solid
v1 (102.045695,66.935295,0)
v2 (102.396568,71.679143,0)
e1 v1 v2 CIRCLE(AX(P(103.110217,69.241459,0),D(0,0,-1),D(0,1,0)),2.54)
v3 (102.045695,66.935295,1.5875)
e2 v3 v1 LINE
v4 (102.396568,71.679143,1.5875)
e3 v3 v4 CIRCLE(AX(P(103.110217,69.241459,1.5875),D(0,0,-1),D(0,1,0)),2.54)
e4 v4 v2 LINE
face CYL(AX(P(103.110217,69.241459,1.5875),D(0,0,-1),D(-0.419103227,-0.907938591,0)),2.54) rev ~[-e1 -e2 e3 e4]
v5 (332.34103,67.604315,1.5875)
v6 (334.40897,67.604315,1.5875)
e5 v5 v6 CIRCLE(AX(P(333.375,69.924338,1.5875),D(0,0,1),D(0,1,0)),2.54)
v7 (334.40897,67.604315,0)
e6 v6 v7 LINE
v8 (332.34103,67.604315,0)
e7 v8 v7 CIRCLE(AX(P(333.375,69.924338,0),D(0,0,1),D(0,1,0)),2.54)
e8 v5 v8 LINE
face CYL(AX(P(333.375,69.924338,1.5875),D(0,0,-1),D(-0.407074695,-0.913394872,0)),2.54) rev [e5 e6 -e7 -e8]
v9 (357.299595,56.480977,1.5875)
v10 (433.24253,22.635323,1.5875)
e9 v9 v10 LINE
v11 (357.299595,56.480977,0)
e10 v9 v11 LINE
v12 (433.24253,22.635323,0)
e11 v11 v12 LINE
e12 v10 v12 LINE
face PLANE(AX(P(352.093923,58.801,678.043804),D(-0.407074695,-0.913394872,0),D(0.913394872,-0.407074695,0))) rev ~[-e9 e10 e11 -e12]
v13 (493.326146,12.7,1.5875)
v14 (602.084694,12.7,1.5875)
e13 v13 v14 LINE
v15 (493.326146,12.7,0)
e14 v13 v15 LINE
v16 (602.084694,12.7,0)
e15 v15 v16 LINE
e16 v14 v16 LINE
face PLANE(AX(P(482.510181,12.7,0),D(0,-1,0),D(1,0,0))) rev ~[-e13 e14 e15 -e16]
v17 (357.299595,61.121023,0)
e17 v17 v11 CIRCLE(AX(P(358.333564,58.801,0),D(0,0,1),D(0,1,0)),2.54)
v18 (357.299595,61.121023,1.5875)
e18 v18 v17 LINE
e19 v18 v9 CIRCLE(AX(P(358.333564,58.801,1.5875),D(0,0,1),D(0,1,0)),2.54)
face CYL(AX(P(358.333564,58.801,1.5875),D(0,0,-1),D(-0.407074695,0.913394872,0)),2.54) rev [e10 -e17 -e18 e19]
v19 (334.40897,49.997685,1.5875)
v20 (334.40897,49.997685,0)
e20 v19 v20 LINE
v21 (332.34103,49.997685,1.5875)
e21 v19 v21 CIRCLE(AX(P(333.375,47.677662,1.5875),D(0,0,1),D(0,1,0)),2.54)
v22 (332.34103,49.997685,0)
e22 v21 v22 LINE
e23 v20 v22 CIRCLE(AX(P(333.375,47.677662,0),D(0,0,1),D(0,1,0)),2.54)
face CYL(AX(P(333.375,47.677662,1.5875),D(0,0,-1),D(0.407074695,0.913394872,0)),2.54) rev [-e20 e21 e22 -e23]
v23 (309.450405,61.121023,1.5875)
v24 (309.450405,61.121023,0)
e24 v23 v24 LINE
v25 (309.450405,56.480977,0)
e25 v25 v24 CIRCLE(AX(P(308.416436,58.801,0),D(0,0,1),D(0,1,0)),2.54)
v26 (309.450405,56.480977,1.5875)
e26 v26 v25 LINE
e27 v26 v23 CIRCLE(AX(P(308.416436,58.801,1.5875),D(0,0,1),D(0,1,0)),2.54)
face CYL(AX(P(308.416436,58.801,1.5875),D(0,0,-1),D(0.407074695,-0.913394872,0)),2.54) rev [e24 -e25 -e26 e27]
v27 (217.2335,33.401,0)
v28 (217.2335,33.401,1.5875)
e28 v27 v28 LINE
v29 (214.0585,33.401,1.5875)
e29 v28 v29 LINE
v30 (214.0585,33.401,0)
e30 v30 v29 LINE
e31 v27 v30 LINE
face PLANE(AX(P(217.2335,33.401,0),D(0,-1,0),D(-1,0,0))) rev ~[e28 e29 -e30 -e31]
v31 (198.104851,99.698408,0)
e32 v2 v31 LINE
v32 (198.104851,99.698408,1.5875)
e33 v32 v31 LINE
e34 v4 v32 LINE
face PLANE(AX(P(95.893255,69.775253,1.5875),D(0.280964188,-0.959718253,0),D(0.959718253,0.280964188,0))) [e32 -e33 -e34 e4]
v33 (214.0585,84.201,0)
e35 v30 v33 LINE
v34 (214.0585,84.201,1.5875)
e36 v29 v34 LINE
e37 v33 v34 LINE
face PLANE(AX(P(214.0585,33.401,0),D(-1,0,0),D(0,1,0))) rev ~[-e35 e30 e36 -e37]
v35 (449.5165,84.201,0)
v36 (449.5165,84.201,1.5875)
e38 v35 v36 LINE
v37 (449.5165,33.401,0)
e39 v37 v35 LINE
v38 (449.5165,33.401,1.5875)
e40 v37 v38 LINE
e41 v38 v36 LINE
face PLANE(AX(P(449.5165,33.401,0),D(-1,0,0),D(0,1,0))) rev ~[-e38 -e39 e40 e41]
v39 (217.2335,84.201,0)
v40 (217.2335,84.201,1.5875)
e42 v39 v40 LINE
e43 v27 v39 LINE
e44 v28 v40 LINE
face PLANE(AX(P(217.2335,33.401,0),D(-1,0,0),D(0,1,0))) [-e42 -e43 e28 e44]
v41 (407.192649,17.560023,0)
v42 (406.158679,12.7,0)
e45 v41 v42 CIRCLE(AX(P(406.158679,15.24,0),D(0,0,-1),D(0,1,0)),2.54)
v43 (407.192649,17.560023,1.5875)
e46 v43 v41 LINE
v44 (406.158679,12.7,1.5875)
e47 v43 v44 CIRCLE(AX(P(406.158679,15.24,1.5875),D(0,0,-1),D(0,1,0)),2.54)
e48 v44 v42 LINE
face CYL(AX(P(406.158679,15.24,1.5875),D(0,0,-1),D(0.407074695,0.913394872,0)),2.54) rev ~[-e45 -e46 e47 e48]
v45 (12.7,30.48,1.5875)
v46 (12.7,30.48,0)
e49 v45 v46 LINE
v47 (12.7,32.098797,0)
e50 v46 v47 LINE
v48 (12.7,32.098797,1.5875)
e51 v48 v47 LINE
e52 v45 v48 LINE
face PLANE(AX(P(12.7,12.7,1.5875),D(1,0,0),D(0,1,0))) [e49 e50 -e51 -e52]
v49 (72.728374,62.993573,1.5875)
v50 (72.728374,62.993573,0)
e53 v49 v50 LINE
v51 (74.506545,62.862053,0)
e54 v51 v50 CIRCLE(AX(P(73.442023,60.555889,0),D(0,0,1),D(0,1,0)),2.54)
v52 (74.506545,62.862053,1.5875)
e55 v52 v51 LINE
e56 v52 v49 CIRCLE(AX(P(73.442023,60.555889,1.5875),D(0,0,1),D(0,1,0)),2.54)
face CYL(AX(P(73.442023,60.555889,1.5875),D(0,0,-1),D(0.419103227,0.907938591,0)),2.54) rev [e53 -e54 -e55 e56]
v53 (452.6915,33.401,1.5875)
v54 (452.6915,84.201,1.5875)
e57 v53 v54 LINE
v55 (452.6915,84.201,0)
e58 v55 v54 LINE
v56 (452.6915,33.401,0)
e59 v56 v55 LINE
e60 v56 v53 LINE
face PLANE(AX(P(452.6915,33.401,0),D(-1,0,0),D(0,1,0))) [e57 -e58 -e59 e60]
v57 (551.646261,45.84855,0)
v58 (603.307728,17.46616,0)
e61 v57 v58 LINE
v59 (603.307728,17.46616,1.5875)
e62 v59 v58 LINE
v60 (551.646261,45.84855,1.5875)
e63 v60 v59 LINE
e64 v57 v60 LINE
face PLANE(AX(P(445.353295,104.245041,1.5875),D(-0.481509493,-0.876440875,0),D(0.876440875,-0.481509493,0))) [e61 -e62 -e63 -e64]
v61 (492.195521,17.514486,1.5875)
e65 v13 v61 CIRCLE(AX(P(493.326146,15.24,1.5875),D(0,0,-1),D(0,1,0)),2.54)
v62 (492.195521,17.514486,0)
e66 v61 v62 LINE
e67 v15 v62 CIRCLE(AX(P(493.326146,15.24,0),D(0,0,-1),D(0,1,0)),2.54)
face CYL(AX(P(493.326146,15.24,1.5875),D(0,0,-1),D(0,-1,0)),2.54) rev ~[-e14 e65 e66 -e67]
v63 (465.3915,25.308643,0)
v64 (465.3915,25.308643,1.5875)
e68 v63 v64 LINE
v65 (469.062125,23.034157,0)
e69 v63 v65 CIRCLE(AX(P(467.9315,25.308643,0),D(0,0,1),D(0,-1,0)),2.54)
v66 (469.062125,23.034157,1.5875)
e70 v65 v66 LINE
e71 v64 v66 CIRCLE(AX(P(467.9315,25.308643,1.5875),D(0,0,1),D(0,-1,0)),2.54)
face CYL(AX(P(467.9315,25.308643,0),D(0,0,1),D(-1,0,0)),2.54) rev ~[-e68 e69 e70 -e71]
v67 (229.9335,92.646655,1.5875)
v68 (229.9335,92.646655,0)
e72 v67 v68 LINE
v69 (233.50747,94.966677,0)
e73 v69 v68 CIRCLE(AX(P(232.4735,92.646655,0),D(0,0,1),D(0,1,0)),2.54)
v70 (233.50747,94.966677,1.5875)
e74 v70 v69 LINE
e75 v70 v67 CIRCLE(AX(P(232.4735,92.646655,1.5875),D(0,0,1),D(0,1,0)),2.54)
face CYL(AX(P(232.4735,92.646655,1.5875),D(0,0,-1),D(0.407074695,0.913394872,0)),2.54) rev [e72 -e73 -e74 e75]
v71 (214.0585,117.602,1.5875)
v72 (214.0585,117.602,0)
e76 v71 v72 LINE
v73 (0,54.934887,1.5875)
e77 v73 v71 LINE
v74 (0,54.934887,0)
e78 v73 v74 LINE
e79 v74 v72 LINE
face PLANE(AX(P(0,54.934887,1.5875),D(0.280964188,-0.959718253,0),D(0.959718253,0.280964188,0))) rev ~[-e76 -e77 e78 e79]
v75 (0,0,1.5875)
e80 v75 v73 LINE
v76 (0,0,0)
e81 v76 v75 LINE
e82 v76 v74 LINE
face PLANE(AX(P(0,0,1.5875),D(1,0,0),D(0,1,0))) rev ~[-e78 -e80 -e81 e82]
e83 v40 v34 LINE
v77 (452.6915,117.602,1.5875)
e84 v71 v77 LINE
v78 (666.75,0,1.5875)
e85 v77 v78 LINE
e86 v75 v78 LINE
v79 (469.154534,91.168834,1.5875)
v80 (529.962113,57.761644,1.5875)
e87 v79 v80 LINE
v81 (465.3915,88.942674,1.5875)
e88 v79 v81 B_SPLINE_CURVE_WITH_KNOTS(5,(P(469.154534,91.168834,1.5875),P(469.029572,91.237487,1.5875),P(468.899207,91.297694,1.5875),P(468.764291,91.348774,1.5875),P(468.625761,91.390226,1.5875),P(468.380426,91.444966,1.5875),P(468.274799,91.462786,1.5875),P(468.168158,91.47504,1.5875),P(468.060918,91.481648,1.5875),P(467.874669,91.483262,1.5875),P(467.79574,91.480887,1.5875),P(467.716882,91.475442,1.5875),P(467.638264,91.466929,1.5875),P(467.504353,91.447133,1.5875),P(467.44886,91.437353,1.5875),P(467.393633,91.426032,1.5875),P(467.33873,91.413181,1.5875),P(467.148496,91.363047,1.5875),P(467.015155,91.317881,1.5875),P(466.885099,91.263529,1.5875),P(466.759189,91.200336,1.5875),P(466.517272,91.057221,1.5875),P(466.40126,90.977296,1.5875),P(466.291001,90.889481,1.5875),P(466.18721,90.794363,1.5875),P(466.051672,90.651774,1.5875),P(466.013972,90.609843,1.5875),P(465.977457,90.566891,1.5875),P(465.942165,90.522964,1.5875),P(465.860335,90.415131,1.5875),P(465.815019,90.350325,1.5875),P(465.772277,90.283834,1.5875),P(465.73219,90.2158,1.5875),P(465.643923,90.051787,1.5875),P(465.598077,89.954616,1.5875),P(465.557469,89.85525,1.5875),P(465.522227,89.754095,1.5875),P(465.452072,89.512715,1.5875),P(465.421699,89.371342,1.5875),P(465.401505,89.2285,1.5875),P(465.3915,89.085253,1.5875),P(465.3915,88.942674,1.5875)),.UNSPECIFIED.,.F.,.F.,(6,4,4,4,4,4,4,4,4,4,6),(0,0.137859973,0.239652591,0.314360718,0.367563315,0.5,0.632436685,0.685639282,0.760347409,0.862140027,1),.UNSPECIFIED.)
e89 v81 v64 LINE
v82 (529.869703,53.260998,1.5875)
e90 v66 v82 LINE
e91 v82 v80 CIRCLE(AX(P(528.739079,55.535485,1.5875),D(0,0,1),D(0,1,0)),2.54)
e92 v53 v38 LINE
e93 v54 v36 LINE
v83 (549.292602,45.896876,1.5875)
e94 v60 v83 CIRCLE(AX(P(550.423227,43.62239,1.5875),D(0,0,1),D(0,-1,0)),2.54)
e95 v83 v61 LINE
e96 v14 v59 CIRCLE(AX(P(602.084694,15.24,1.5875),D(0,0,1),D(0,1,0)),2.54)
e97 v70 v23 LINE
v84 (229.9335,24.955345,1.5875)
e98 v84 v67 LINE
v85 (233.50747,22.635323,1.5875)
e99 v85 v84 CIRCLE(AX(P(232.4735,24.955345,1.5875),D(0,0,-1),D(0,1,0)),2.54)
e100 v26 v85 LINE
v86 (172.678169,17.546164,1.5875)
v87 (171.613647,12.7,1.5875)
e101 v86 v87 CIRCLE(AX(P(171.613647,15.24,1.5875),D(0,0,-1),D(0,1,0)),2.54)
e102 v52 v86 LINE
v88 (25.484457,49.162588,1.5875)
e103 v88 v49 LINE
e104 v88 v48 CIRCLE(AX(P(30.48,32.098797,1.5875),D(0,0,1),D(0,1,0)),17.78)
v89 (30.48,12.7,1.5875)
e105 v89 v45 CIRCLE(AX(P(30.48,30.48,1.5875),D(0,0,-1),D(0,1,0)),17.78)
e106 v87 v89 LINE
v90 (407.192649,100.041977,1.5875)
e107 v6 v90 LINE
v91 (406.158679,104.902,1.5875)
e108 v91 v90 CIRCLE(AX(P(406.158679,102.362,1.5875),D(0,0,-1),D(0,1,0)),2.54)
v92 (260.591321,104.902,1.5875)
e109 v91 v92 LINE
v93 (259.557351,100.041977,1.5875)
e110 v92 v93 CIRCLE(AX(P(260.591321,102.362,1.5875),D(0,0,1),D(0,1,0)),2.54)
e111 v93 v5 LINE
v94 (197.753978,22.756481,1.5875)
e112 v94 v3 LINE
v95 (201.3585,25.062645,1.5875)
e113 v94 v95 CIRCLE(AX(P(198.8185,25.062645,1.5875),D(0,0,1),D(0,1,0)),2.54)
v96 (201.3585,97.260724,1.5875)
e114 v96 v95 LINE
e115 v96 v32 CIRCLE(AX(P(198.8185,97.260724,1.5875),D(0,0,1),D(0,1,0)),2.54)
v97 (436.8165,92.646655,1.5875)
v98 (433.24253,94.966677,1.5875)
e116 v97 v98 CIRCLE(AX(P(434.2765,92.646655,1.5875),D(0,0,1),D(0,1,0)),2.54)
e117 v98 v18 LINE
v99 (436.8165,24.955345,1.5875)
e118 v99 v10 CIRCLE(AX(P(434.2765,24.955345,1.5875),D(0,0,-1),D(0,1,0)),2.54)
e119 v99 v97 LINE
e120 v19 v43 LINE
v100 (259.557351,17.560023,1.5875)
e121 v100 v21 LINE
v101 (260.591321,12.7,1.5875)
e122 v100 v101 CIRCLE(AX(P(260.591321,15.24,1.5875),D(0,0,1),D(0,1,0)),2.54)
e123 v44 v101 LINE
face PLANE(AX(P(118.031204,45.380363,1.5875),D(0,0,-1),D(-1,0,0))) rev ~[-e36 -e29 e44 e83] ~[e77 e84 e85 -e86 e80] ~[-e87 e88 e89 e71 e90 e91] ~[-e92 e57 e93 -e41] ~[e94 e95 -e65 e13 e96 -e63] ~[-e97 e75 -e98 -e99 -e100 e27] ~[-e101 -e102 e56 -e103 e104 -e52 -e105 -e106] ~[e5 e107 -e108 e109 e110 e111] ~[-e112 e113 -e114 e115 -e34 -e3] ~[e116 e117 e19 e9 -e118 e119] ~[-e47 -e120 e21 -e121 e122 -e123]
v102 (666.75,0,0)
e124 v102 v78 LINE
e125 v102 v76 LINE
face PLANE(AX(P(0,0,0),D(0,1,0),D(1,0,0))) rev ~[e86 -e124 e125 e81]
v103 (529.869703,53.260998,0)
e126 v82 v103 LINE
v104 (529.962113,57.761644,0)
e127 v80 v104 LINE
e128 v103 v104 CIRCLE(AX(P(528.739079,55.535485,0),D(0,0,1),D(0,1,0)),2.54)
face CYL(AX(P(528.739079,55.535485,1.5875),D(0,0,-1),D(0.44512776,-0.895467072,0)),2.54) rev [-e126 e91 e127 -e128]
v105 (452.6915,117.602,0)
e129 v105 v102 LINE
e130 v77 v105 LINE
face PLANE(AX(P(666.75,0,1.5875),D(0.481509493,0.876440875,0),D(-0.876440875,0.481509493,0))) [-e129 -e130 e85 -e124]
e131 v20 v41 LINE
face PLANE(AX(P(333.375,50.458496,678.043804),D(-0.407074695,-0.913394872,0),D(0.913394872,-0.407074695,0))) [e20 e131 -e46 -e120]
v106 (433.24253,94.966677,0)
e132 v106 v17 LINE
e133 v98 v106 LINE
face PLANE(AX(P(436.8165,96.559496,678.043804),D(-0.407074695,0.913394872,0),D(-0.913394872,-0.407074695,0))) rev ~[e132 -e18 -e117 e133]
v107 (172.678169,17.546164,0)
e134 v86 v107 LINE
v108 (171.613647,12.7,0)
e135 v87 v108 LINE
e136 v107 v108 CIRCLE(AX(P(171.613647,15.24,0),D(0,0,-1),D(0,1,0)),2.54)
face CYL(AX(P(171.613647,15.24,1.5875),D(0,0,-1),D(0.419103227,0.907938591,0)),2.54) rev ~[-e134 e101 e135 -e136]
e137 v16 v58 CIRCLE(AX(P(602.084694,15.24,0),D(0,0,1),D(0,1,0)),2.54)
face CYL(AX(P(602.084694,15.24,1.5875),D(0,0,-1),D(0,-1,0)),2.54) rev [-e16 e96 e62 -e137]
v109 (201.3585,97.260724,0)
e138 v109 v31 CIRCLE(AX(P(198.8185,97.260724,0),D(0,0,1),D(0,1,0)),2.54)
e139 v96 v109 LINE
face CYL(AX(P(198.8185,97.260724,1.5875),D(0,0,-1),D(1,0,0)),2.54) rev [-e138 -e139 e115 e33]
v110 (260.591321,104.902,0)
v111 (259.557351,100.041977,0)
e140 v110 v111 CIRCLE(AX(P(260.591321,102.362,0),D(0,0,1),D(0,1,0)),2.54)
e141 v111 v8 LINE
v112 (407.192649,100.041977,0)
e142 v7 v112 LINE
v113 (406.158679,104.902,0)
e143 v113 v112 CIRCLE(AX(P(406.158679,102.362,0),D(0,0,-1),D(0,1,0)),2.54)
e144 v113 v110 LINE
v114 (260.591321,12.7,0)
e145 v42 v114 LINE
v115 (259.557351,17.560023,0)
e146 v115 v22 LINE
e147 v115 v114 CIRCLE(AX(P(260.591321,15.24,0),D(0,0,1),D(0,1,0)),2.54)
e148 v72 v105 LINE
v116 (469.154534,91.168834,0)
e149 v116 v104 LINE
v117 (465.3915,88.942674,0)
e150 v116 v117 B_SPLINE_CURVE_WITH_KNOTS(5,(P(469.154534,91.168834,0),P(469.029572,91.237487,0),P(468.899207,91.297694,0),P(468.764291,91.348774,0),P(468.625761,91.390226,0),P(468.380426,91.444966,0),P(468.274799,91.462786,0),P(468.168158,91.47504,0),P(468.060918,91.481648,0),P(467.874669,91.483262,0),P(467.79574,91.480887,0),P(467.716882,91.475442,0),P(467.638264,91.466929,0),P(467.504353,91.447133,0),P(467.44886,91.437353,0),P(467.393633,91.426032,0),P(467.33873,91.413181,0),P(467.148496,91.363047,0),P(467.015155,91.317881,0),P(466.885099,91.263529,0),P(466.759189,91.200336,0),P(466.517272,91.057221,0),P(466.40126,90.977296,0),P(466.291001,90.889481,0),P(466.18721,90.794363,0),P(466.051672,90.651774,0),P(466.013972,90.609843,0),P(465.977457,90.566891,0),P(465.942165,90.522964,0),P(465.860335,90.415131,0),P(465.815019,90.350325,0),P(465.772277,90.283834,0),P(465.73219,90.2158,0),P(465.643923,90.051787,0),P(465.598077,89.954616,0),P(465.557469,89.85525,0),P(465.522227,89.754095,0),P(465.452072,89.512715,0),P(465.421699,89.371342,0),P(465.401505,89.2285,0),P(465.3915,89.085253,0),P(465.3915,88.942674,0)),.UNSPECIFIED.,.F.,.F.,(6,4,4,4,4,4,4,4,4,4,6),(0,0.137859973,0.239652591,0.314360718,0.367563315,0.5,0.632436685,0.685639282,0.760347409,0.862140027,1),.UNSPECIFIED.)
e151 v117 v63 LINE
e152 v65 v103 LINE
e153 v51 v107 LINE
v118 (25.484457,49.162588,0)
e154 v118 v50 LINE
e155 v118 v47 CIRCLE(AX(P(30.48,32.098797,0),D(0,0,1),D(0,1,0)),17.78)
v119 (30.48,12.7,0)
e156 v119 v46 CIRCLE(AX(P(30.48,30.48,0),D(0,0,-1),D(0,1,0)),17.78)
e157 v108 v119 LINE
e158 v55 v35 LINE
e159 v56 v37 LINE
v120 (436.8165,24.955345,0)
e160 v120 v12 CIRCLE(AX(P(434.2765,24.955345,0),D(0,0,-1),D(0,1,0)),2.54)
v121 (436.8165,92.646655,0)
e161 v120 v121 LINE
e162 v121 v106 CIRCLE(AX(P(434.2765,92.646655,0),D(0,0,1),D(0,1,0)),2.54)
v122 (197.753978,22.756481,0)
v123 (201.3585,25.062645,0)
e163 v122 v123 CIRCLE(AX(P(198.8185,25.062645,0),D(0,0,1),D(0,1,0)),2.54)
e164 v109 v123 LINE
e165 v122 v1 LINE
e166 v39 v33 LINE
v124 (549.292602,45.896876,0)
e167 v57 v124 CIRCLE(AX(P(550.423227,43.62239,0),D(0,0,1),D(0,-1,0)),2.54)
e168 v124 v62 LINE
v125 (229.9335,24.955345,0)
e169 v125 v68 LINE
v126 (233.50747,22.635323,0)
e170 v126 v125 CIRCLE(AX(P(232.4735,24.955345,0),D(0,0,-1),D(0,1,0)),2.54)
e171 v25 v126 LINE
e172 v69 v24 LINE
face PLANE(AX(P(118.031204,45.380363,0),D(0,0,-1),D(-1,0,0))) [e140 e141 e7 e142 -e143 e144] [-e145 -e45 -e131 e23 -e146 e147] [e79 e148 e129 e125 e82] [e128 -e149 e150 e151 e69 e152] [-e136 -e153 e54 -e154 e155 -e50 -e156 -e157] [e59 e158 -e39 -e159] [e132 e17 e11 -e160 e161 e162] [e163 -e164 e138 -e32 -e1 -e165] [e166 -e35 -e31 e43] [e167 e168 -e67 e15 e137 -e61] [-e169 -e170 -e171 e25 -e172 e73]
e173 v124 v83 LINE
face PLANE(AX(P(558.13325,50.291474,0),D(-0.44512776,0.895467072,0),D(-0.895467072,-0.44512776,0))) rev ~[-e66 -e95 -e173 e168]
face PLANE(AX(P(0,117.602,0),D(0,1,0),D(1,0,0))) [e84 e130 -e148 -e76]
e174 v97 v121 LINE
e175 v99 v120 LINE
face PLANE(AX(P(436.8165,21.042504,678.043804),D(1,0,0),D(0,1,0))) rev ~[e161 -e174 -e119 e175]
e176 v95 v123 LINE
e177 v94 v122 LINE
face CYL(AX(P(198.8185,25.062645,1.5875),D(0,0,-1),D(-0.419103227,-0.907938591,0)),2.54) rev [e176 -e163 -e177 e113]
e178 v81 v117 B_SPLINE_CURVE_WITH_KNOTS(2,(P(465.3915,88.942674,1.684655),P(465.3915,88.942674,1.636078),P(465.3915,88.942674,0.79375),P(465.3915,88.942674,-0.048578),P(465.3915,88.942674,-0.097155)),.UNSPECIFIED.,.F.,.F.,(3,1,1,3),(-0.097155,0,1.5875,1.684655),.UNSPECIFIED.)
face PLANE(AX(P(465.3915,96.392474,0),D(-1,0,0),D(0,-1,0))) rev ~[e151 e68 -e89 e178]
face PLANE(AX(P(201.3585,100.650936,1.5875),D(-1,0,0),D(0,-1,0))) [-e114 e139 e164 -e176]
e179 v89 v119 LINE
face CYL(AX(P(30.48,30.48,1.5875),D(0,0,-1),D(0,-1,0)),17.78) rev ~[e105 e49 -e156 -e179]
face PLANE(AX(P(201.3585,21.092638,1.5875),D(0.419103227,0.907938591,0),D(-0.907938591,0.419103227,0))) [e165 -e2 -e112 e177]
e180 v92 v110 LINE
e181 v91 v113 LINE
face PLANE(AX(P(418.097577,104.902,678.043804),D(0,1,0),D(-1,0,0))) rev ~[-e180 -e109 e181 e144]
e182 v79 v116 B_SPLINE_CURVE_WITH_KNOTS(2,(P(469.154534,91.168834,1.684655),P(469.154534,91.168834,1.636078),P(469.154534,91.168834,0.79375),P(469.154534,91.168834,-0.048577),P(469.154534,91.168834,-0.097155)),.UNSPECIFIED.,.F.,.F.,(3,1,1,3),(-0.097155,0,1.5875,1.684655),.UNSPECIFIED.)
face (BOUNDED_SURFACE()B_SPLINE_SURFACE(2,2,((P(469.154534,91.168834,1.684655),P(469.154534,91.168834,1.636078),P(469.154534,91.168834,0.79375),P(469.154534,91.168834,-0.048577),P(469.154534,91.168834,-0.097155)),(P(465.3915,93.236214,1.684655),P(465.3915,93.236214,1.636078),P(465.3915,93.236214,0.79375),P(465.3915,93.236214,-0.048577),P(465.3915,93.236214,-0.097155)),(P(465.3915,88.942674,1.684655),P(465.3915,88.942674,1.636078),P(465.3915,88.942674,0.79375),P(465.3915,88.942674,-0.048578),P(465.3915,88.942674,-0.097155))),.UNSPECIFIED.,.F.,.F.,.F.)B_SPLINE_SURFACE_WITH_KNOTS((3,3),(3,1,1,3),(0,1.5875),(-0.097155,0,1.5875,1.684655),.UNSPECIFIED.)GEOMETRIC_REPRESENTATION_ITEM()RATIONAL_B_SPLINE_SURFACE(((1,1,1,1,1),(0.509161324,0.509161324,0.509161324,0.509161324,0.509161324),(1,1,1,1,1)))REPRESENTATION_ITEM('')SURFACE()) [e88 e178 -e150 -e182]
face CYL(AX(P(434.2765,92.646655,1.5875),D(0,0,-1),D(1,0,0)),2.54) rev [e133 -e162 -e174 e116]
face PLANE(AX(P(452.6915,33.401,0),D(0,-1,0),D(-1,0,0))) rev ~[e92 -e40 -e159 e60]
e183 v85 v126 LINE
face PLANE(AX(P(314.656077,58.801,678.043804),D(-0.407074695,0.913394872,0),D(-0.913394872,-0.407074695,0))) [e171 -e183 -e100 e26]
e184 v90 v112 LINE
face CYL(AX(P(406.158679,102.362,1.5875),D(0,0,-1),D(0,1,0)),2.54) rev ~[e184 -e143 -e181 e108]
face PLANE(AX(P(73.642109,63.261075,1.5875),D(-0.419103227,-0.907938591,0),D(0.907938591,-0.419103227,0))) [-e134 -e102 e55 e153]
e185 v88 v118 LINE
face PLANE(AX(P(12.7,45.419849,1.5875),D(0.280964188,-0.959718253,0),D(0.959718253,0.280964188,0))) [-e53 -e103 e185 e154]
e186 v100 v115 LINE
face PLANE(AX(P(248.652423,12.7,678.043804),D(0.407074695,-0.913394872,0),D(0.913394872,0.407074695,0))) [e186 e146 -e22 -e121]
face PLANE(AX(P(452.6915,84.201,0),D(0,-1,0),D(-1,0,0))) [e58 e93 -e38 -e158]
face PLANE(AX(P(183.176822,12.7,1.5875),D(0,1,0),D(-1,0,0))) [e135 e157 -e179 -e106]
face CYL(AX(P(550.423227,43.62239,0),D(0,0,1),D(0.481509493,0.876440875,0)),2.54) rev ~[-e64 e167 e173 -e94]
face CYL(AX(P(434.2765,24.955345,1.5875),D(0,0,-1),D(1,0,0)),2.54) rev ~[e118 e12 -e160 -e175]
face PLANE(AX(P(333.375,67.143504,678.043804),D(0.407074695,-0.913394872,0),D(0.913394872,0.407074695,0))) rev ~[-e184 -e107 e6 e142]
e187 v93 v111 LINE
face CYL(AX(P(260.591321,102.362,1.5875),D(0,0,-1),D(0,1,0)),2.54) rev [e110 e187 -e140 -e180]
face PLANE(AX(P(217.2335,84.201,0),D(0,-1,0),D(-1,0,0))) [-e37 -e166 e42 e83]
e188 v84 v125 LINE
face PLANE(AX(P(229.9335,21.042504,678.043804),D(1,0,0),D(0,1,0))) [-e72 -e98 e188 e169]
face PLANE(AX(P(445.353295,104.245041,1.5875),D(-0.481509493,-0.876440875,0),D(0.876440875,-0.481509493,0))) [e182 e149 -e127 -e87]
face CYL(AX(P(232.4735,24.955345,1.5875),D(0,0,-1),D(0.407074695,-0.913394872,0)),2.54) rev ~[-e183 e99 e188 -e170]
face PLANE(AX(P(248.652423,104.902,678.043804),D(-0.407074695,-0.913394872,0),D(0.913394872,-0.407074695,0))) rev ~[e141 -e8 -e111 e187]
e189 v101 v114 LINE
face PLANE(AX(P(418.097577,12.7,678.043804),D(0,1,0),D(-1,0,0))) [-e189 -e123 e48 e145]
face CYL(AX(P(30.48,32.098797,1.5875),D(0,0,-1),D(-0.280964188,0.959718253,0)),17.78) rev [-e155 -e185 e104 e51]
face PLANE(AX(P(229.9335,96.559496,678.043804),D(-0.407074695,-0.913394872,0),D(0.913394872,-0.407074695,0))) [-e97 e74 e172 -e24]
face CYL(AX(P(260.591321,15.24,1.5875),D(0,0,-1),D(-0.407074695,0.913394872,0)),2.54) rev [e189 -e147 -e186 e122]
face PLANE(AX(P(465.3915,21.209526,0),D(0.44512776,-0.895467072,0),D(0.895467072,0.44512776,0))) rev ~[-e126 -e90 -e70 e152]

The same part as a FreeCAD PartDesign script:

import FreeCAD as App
import Part
import Sketcher
Q = App.Units.Quantity


def edges_at(feature, points):
    """Names of the edges that pass closest to the given points."""
    edges = feature.Shape.Edges
    near = lambda p: min(range(len(edges)), key=lambda i: edges[i].distToShape(Part.Vertex(*p))[0])
    return sorted({f"Edge{near(p) + 1}" for p in points})

doc = App.newDocument("Part")
body = doc.addObject("PartDesign::Body", "Body")

sketch1 = body.newObject("Sketcher::SketchObject", "Sketch")
sketch1.AttachmentSupport = (doc.getObject("XY_Plane"), [""])
sketch1.MapMode = "FlatFace"
sketch1.addGeometry([
    Part.LineSegment(App.Vector(0, 118, 0), App.Vector(0, 0, 0)),
    Part.LineSegment(App.Vector(0, 0, 0), App.Vector(667, 0, 0)),
    Part.LineSegment(App.Vector(667, 0, 0), App.Vector(667, 118, 0)),
    Part.LineSegment(App.Vector(667, 118, 0), App.Vector(0, 118, 0)),
], False)
sketch1.addConstraint([
    Sketcher.Constraint("Coincident", 0, 2, 1, 1),
    Sketcher.Constraint("Coincident", 1, 2, 2, 1),
    Sketcher.Constraint("Coincident", 2, 2, 3, 1),
    Sketcher.Constraint("Coincident", 3, 2, 0, 1),
    Sketcher.Constraint("Vertical", 0),
    Sketcher.Constraint("Horizontal", 1),
    Sketcher.Constraint("Vertical", 2),
    Sketcher.Constraint("Horizontal", 3),
    Sketcher.Constraint("Coincident", 0, 2, -1, 1),
    Sketcher.Constraint("DistanceX", 1, 1, 1, 2, Q("26.25 in")),
    Sketcher.Constraint("DistanceY", 0, 2, 0, 1, Q("4.63 in")),
])
pad1 = body.newObject("PartDesign::Pad", "Pad")
pad1.Profile = sketch1
pad1.Length = Q("0.0625 in")

sketch2 = body.newObject("Sketcher::SketchObject", "Sketch001")
sketch2.AttachmentSupport = (doc.getObject("XY_Plane"), [""])
sketch2.MapMode = "FlatFace"
sketch2.addGeometry([
    Part.LineSegment(App.Vector(217.2, 84.2, 0), App.Vector(217.2, 33.4, 0)),
    Part.LineSegment(App.Vector(217.2, 33.4, 0), App.Vector(214.1, 33.4, 0)),
    Part.LineSegment(App.Vector(214.1, 33.4, 0), App.Vector(214.1, 84.2, 0)),
    Part.LineSegment(App.Vector(214.1, 84.2, 0), App.Vector(217.2, 84.2, 0)),
], False)
sketch2.addConstraint([
    Sketcher.Constraint("Coincident", 0, 2, 1, 1),
    Sketcher.Constraint("Coincident", 1, 2, 2, 1),
    Sketcher.Constraint("Coincident", 2, 2, 3, 1),
    Sketcher.Constraint("Coincident", 3, 2, 0, 1),
    Sketcher.Constraint("Vertical", 0),
    Sketcher.Constraint("Horizontal", 1),
    Sketcher.Constraint("Vertical", 2),
    Sketcher.Constraint("Horizontal", 3),
    Sketcher.Constraint("DistanceY", 0, 2, 0, 1, Q("2 in")),
    Sketcher.Constraint("DistanceX", 1, 2, 1, 1, Q("0.125 in")),
    Sketcher.Constraint("DistanceY", -1, 1, 0, 2, Q("1.315 in")),
    Sketcher.Constraint("DistanceX", -1, 1, 0, 2, Q("8.5525 in")),
])
pocket1 = body.newObject("PartDesign::Pocket", "Pocket")
pocket1.Profile = sketch2
pocket1.Type = "UpToFirst"
pocket1.Reversed = True

sketch3 = body.newObject("Sketcher::SketchObject", "Sketch002")
sketch3.AttachmentSupport = (doc.getObject("XY_Plane"), [""])
sketch3.MapMode = "FlatFace"
sketch3.addGeometry([
    Part.LineSegment(App.Vector(452.7, 84.2, 0), App.Vector(452.7, 33.4, 0)),
    Part.LineSegment(App.Vector(452.7, 33.4, 0), App.Vector(449.5, 33.4, 0)),
    Part.LineSegment(App.Vector(449.5, 33.4, 0), App.Vector(449.5, 84.2, 0)),
    Part.LineSegment(App.Vector(449.5, 84.2, 0), App.Vector(452.7, 84.2, 0)),
], False)
sketch3.addConstraint([
    Sketcher.Constraint("Coincident", 0, 2, 1, 1),
    Sketcher.Constraint("Coincident", 1, 2, 2, 1),
    Sketcher.Constraint("Coincident", 2, 2, 3, 1),
    Sketcher.Constraint("Coincident", 3, 2, 0, 1),
    Sketcher.Constraint("Vertical", 0),
    Sketcher.Constraint("Horizontal", 1),
    Sketcher.Constraint("Vertical", 2),
    Sketcher.Constraint("Horizontal", 3),
    Sketcher.Constraint("DistanceY", 0, 2, 0, 1, Q("2 in")),
    Sketcher.Constraint("DistanceX", 1, 2, 1, 1, Q("0.125 in")),
    Sketcher.Constraint("DistanceY", -1, 1, 0, 2, Q("1.315 in")),
    Sketcher.Constraint("DistanceX", -1, 1, 0, 2, Q("17.8225 in")),
])
pocket2 = body.newObject("PartDesign::Pocket", "Pocket001")
pocket2.Profile = sketch3
pocket2.Type = "UpToFirst"
pocket2.Reversed = True

sketch4 = body.newObject("Sketcher::SketchObject", "Sketch003")
sketch4.AttachmentSupport = (doc.getObject("XY_Plane"), [""])
sketch4.MapMode = "FlatFace"
sketch4.addGeometry([
    Part.LineSegment(App.Vector(666.8, 84.2, 0), App.Vector(666.8, 33.4, 0)),
    Part.LineSegment(App.Vector(666.8, 33.4, 0), App.Vector(663.6, 33.4, 0)),
    Part.LineSegment(App.Vector(663.6, 33.4, 0), App.Vector(663.6, 84.2, 0)),
    Part.LineSegment(App.Vector(663.6, 84.2, 0), App.Vector(666.8, 84.2, 0)),
], False)
sketch4.addConstraint([
    Sketcher.Constraint("Coincident", 0, 2, 1, 1),
    Sketcher.Constraint("Coincident", 1, 2, 2, 1),
    Sketcher.Constraint("Coincident", 2, 2, 3, 1),
    Sketcher.Constraint("Coincident", 3, 2, 0, 1),
    Sketcher.Constraint("Vertical", 0),
    Sketcher.Constraint("Horizontal", 1),
    Sketcher.Constraint("Vertical", 2),
    Sketcher.Constraint("Horizontal", 3),
    Sketcher.Constraint("DistanceY", 0, 2, 0, 1, Q("2 in")),
    Sketcher.Constraint("DistanceX", 1, 2, 1, 1, Q("0.125 in")),
    Sketcher.Constraint("DistanceX", -1, 1, 0, 2, Q("26.25 in")),
    Sketcher.Constraint("DistanceY", -1, 1, 0, 2, Q("1.315 in")),
])
pocket3 = body.newObject("PartDesign::Pocket", "Pocket002")
pocket3.Profile = sketch4
pocket3.Type = "UpToFirst"
pocket3.Reversed = True

sketch5 = body.newObject("Sketcher::SketchObject", "Sketch004")
sketch5.AttachmentSupport = (doc.getObject("XY_Plane"), [""])
sketch5.MapMode = "FlatFace"
sketch5.addGeometry([
    Part.LineSegment(App.Vector(3.2, 84.2, 0), App.Vector(3.2, 33.4, 0)),
    Part.LineSegment(App.Vector(3.2, 33.4, 0), App.Vector(0, 33.4, 0)),
    Part.LineSegment(App.Vector(0, 33.4, 0), App.Vector(0, 84.2, 0)),
    Part.LineSegment(App.Vector(0, 84.2, 0), App.Vector(3.2, 84.2, 0)),
], False)
sketch5.addConstraint([
    Sketcher.Constraint("Coincident", 0, 2, 1, 1),
    Sketcher.Constraint("Coincident", 1, 2, 2, 1),
    Sketcher.Constraint("Coincident", 2, 2, 3, 1),
    Sketcher.Constraint("Coincident", 3, 2, 0, 1),
    Sketcher.Constraint("Vertical", 0),
    Sketcher.Constraint("Horizontal", 1),
    Sketcher.Constraint("Vertical", 2),
    Sketcher.Constraint("Horizontal", 3),
    Sketcher.Constraint("PointOnObject", 1, 2, -2),
    Sketcher.Constraint("DistanceY", 0, 2, 0, 1, Q("2 in")),
    Sketcher.Constraint("DistanceX", 1, 2, 1, 1, Q("0.125 in")),
    Sketcher.Constraint("DistanceY", -1, 1, 0, 2, Q("1.315 in")),
])
pocket4 = body.newObject("PartDesign::Pocket", "Pocket003")
pocket4.Profile = sketch5
pocket4.Type = "UpToFirst"
pocket4.Reversed = True

sketch6 = body.newObject("Sketcher::SketchObject", "Sketch005")
sketch6.AttachmentSupport = (doc.getObject("XY_Plane"), [""])
sketch6.MapMode = "FlatFace"
sketch6.addGeometry([
    Part.LineSegment(App.Vector(483, 105, 0), App.Vector(634, 105, 0)),
    Part.LineSegment(App.Vector(634, 105, 0), App.Vector(558, 67, 0)),
    Part.LineSegment(App.Vector(558, 67, 0), App.Vector(483, 105, 0)),
    Part.LineSegment(App.Vector(465, 21, 0), App.Vector(465, 96, 0)),
    Part.LineSegment(App.Vector(465, 96, 0), App.Vector(541, 59, 0)),
    Part.LineSegment(App.Vector(541, 59, 0), App.Vector(465, 21, 0)),
    Part.LineSegment(App.Vector(634, 13, 0), App.Vector(483, 13, 0)),
    Part.LineSegment(App.Vector(483, 13, 0), App.Vector(558, 50, 0)),
    Part.LineSegment(App.Vector(558, 50, 0), App.Vector(634, 13, 0)),
    Part.LineSegment(App.Vector(651, 96, 0), App.Vector(651, 21, 0)),
    Part.LineSegment(App.Vector(651, 21, 0), App.Vector(575, 59, 0)),
    Part.LineSegment(App.Vector(575, 59, 0), App.Vector(651, 96, 0)),
], False)
sketch6.addConstraint([
    Sketcher.Constraint("Coincident", 0, 2, 1, 1),
    Sketcher.Constraint("Coincident", 1, 2, 2, 1),
    Sketcher.Constraint("Coincident", 2, 2, 0, 1),
    Sketcher.Constraint("Coincident", 3, 2, 4, 1),
    Sketcher.Constraint("Coincident", 4, 2, 5, 1),
    Sketcher.Constraint("Coincident", 5, 2, 3, 1),
    Sketcher.Constraint("Coincident", 6, 2, 7, 1),
    Sketcher.Constraint("Coincident", 7, 2, 8, 1),
    Sketcher.Constraint("Coincident", 8, 2, 6, 1),
    Sketcher.Constraint("Coincident", 9, 2, 10, 1),
    Sketcher.Constraint("Coincident", 10, 2, 11, 1),
    Sketcher.Constraint("Coincident", 11, 2, 9, 1),
    Sketcher.Constraint("Horizontal", 0),
    Sketcher.Constraint("Vertical", 3),
    Sketcher.Constraint("Horizontal", 6),
    Sketcher.Constraint("Vertical", 9),
    Sketcher.Constraint("Parallel", 2, 4),
    Sketcher.Constraint("Parallel", 1, 5),
    Sketcher.Constraint("Parallel", 5, 7),
    Sketcher.Constraint("Parallel", 4, 8),
    Sketcher.Constraint("Parallel", 8, 10),
    Sketcher.Constraint("Parallel", 7, 11),
    Sketcher.Constraint("Horizontal", 5, 2, 9, 2),
    Sketcher.Constraint("Horizontal", 4, 2, 10, 2),
    Sketcher.Constraint("Horizontal", 3, 2, 11, 2),
    Sketcher.Constraint("Vertical", 2, 2, 6, 2),
    Sketcher.Constraint("Vertical", 1, 2, 7, 2),
    Sketcher.Constraint("Equal", 2, 4),
    Sketcher.Constraint("DistanceY", -1, 1, 6, 2, Q("0.5 in")),
    Sketcher.Constraint("DistanceY", -1, 1, 0, 2, Q("4.13 in")),
    Sketcher.Constraint("DistanceY", -1, 1, 4, 2, Q("2.315 in")),
    Sketcher.Constraint("DistanceX", -1, 1, 9, 2, Q("25.625 in")),
    Sketcher.Constraint("DistanceX", -1, 1, 3, 2, Q("18.3225 in")),
    Sketcher.Constraint("DistanceX", 0, 1, 0, 2, 151.246139),
    Sketcher.Constraint("DistanceY", 3, 1, 3, 2, 75.182949),
    Sketcher.Constraint("DistanceX", -1, 1, 0, 2, 633.756319),
])
pocket5 = body.newObject("PartDesign::Pocket", "Pocket004")
pocket5.Profile = sketch6
pocket5.Length = 1356.087609
pocket5.Midplane = True
doc.recompute()

fillet = body.newObject("PartDesign::Fillet", "Fillet")
fillet.Base = (pocket5, edges_at(pocket5, [
    (650.875, 21.21, 0.794),
    (650.875, 96.392, 0.794),
    (633.756, 12.7, 0.794),
    (558.133, 50.291, 0.794),
    (482.51, 12.7, 0.794),
    (482.51, 104.902, 0.794),
    (558.133, 67.311, 0.794),
    (633.756, 104.902, 0.794),
    (541.015, 58.801, 0.794),
    (465.392, 96.392, 0.794),
    (465.392, 21.21, 0.794),
    (575.252, 58.801, 0.794),
]))
fillet.Radius = Q("0.1 in")
doc.recompute()

datumplane = body.newObject("PartDesign::Plane", "DatumPlane")
datumplane.AttachmentSupport = (doc.getObject("YZ_Plane"), [""])
datumplane.MapMode = "FlatFace"
datumplane.AttachmentOffset = App.Placement(App.Vector(0, 0, 13.125 * 25.4), App.Rotation())
mirrored = body.newObject("PartDesign::Mirrored", "Mirrored")
mirrored.Originals = [pocket5]
mirrored.MirrorPlane = (datumplane, [""])
body.Tip = mirrored
doc.recompute()

fillet2 = body.newObject("PartDesign::Fillet", "Fillet001")
fillet2.Base = (mirrored, edges_at(mirrored, [
    (15.875, 21.21, 0.794),
    (15.875, 96.392, 0.794),
    (32.994, 12.7, 0.794),
    (108.617, 50.291, 0.794),
    (184.24, 12.7, 0.794),
    (184.24, 104.902, 0.794),
    (108.617, 67.311, 0.794),
    (32.994, 104.902, 0.794),
    (125.735, 58.801, 0.794),
    (201.358, 96.392, 0.794),
    (201.358, 21.21, 0.794),
    (91.498, 58.801, 0.794),
]))
fillet2.Radius = Q("0.1 in")

sketch7 = body.newObject("Sketcher::SketchObject", "Sketch006")
sketch7.AttachmentSupport = (doc.getObject("XY_Plane"), [""])
sketch7.MapMode = "FlatFace"
sketch7.addGeometry([
    Part.LineSegment(App.Vector(418, 13, 0), App.Vector(249, 13, 0)),
    Part.LineSegment(App.Vector(249, 13, 0), App.Vector(333, 50, 0)),
    Part.LineSegment(App.Vector(333, 50, 0), App.Vector(418, 13, 0)),
    Part.LineSegment(App.Vector(437, 97, 0), App.Vector(437, 21, 0)),
    Part.LineSegment(App.Vector(437, 21, 0), App.Vector(352, 59, 0)),
    Part.LineSegment(App.Vector(352, 59, 0), App.Vector(437, 97, 0)),
    Part.LineSegment(App.Vector(249, 105, 0), App.Vector(418, 105, 0)),
    Part.LineSegment(App.Vector(418, 105, 0), App.Vector(333, 67, 0)),
    Part.LineSegment(App.Vector(333, 67, 0), App.Vector(249, 105, 0)),
    Part.LineSegment(App.Vector(230, 21, 0), App.Vector(230, 97, 0)),
    Part.LineSegment(App.Vector(230, 97, 0), App.Vector(315, 59, 0)),
    Part.LineSegment(App.Vector(315, 59, 0), App.Vector(230, 21, 0)),
], False)
sketch7.addConstraint([
    Sketcher.Constraint("Coincident", 0, 2, 1, 1),
    Sketcher.Constraint("Coincident", 1, 2, 2, 1),
    Sketcher.Constraint("Coincident", 2, 2, 0, 1),
    Sketcher.Constraint("Coincident", 3, 2, 4, 1),
    Sketcher.Constraint("Coincident", 4, 2, 5, 1),
    Sketcher.Constraint("Coincident", 5, 2, 3, 1),
    Sketcher.Constraint("Coincident", 6, 2, 7, 1),
    Sketcher.Constraint("Coincident", 7, 2, 8, 1),
    Sketcher.Constraint("Coincident", 8, 2, 6, 1),
    Sketcher.Constraint("Coincident", 9, 2, 10, 1),
    Sketcher.Constraint("Coincident", 10, 2, 11, 1),
    Sketcher.Constraint("Coincident", 11, 2, 9, 1),
    Sketcher.Constraint("Horizontal", 0),
    Sketcher.Constraint("Vertical", 3),
    Sketcher.Constraint("Horizontal", 6),
    Sketcher.Constraint("Vertical", 9),
    Sketcher.Constraint("Parallel", 2, 4),
    Sketcher.Constraint("Parallel", 1, 5),
    Sketcher.Constraint("Parallel", 5, 7),
    Sketcher.Constraint("Parallel", 4, 8),
    Sketcher.Constraint("Parallel", 8, 10),
    Sketcher.Constraint("Parallel", 7, 11),
    Sketcher.Constraint("Horizontal", 5, 2, 9, 2),
    Sketcher.Constraint("Horizontal", 4, 2, 10, 2),
    Sketcher.Constraint("Horizontal", 3, 2, 11, 2),
    Sketcher.Constraint("Vertical", 2, 2, 6, 2),
    Sketcher.Constraint("Vertical", 1, 2, 7, 2),
    Sketcher.Constraint("Equal", 2, 4),
    Sketcher.Constraint("DistanceY", -1, 1, 0, 2, Q("0.5 in")),
    Sketcher.Constraint("DistanceY", -1, 1, 6, 2, Q("4.13 in")),
    Sketcher.Constraint("DistanceX", -1, 1, 1, 2, Q("13.125 in")),
    Sketcher.Constraint("DistanceY", -1, 1, 4, 2, Q("2.315 in")),
    Sketcher.Constraint("DistanceX", -1, 1, 3, 2, Q("17.1975 in")),
    Sketcher.Constraint("DistanceX", -1, 1, 9, 2, Q("9.0525 in")),
    Sketcher.Constraint("DistanceX", 0, 2, 0, 1, 169.445153),
    Sketcher.Constraint("DistanceY", 3, 2, 3, 1, 75.516993),
])
pocket6 = body.newObject("PartDesign::Pocket", "Pocket005")
pocket6.Profile = sketch7
pocket6.Type = "ThroughAll"
pocket6.Midplane = True
doc.recompute()

fillet3 = body.newObject("PartDesign::Fillet", "Fillet002")
fillet3.Base = (pocket6, edges_at(pocket6, [
    (314.656, 58.801, 0.794),
    (229.934, 96.559, 0.794),
    (229.934, 21.043, 0.794),
    (418.098, 12.7, 0.794),
    (333.375, 50.458, 0.794),
    (248.652, 12.7, 0.794),
    (352.094, 58.801, 0.794),
    (436.817, 21.043, 0.794),
    (436.817, 96.559, 0.794),
    (248.652, 104.902, 0.794),
    (333.375, 67.144, 0.794),
    (418.098, 104.902, 0.794),
]))
fillet3.Radius = Q("0.1 in")

sketch8 = body.newObject("Sketcher::SketchObject", "Sketch007")
sketch8.AttachmentSupport = (doc.getObject("XY_Plane"), [""])
sketch8.MapMode = "FlatFace"
sketch8.AttachmentOffset = App.Placement(App.Vector(0, 0, 0.0625 * 25.4), App.Rotation())
sketch8.addGeometry([
    Part.LineSegment(App.Vector(453, 118, 0), App.Vector(667, 0, 0)),
    Part.LineSegment(App.Vector(667, 0, 0), App.Vector(667, 118, 0)),
    Part.LineSegment(App.Vector(667, 118, 0), App.Vector(453, 118, 0)),
], False)
sketch8.addConstraint([
    Sketcher.Constraint("Coincident", 0, 2, 1, 1),
    Sketcher.Constraint("Coincident", 1, 2, 2, 1),
    Sketcher.Constraint("Coincident", 2, 2, 0, 1),
    Sketcher.Constraint("Vertical", 1),
    Sketcher.Constraint("Horizontal", 2),
    Sketcher.Constraint("PointOnObject", 0, 2, -1),
    Sketcher.Constraint("DistanceY", 1, 1, 1, 2, Q("4.63 in")),
    Sketcher.Constraint("DistanceX", -1, 1, 0, 2, Q("26.25 in")),
    Sketcher.Constraint("DistanceX", 2, 2, 2, 1, Q("8.4275 in")),
])
pocket7 = body.newObject("PartDesign::Pocket", "Pocket006")
pocket7.Profile = sketch8
pocket7.Type = "UpToFirst"

sketch9 = body.newObject("Sketcher::SketchObject", "Sketch008")
sketch9.AttachmentSupport = (doc.getObject("XY_Plane"), [""])
sketch9.MapMode = "FlatFace"
sketch9.AttachmentOffset = App.Placement(App.Vector(0, 0, 0.0625 * 25.4), App.Rotation())
sketch9.addGeometry([
    Part.LineSegment(App.Vector(0, 118, 0), App.Vector(0, 0, 0)),
    Part.LineSegment(App.Vector(0, 0, 0), App.Vector(214, 118, 0)),
    Part.LineSegment(App.Vector(214, 118, 0), App.Vector(0, 118, 0)),
], False)
sketch9.addConstraint([
    Sketcher.Constraint("Coincident", 0, 2, 1, 1),
    Sketcher.Constraint("Coincident", 1, 2, 2, 1),
    Sketcher.Constraint("Coincident", 2, 2, 0, 1),
    Sketcher.Constraint("Vertical", 0),
    Sketcher.Constraint("Horizontal", 2),
    Sketcher.Constraint("Coincident", 0, 2, -1, 1),
    Sketcher.Constraint("DistanceY", 0, 2, 0, 1, Q("4.63 in")),
    Sketcher.Constraint("DistanceX", 2, 2, 2, 1, Q("8.4275 in")),
])
pocket8 = body.newObject("PartDesign::Pocket", "Pocket007")
pocket8.Profile = sketch9
pocket8.Type = "UpToFirst"

sketch10 = body.newObject("Sketcher::SketchObject", "Sketch009")
sketch10.AttachmentSupport = (doc.getObject("XY_Plane"), [""])
sketch10.MapMode = "FlatFace"
sketch10.AttachmentOffset = App.Placement(App.Vector(0, 0, 0.0625 * 25.4), App.Rotation())
sketch10.addGeometry([
    Part.LineSegment(App.Vector(453, 118, 0), App.Vector(445, 104, 0)),
    Part.LineSegment(App.Vector(445, 104, 0), App.Vector(635, 0, 0)),
    Part.LineSegment(App.Vector(635, 0, 0), App.Vector(642, 13, 0)),
    Part.LineSegment(App.Vector(642, 13, 0), App.Vector(453, 118, 0)),
    Part.LineSegment(App.Vector(24, 13, 0), App.Vector(32, 0, 0)),
    Part.LineSegment(App.Vector(32, 0, 0), App.Vector(221, 104, 0)),
    Part.LineSegment(App.Vector(221, 104, 0), App.Vector(214, 118, 0)),
    Part.LineSegment(App.Vector(214, 118, 0), App.Vector(24, 13, 0)),
], False)
sketch10.addConstraint([
    Sketcher.Constraint("Coincident", 0, 2, 1, 1),
    Sketcher.Constraint("Coincident", 1, 2, 2, 1),
    Sketcher.Constraint("Coincident", 2, 2, 3, 1),
    Sketcher.Constraint("Coincident", 3, 2, 0, 1),
    Sketcher.Constraint("Coincident", 4, 2, 5, 1),
    Sketcher.Constraint("Coincident", 5, 2, 6, 1),
    Sketcher.Constraint("Coincident", 6, 2, 7, 1),
    Sketcher.Constraint("Coincident", 7, 2, 4, 1),
    Sketcher.Constraint("PointOnObject", 1, 2, -1),
    Sketcher.Constraint("PointOnObject", 4, 2, -1),
    Sketcher.Constraint("Perpendicular", 0, 1),
    Sketcher.Constraint("Perpendicular", 1, 2),
    Sketcher.Constraint("Perpendicular", 2, 3),
    Sketcher.Constraint("Perpendicular", 4, 5),
    Sketcher.Constraint("Perpendicular", 5, 6),
    Sketcher.Constraint("Perpendicular", 6, 7),
    Sketcher.Constraint("Horizontal", 0, 2, 5, 2),
    Sketcher.Constraint("Horizontal", 3, 2, 6, 2),
    Sketcher.Constraint("Equal", 2, 4),
    Sketcher.Constraint("Distance", 0, Q("0.6 in")),
    Sketcher.Constraint("DistanceY", -1, 1, 3, 2, Q("4.63 in")),
    Sketcher.Constraint("DistanceX", 6, 2, 3, 2, Q("9.395 in")),
    Sketcher.Constraint("DistanceX", -1, 1, 3, 2, Q("17.8225 in")),
    Sketcher.Constraint("DistanceY", -1, 1, 0, 2, 104.245041),
])
pad2 = body.newObject("PartDesign::Pad", "Pad001")
pad2.Profile = sketch10
pad2.Length = Q("0.0625 in")
pad2.Reversed = True

sketch11 = body.newObject("Sketcher::SketchObject", "Sketch010")
sketch11.AttachmentSupport = (doc.getObject("XY_Plane"), [""])
sketch11.MapMode = "FlatFace"
sketch11.AttachmentOffset = App.Placement(App.Vector(0, 0, 0.0625 * 25.4), App.Rotation())
sketch11.addGeometry([
    Part.LineSegment(App.Vector(465.39, 93.24, 0), App.Vector(465.39, 92.29, 0)),
    Part.LineSegment(App.Vector(465.39, 92.29, 0), App.Vector(465.54, 93.15, 0)),
    Part.LineSegment(App.Vector(465.54, 93.15, 0), App.Vector(465.39, 93.24, 0)),
], False)
sketch11.addConstraint([
    Sketcher.Constraint("Coincident", 0, 2, 1, 1),
    Sketcher.Constraint("Coincident", 1, 2, 2, 1),
    Sketcher.Constraint("Coincident", 2, 2, 0, 1),
    Sketcher.Constraint("Vertical", 0),
    Sketcher.Constraint("DistanceX", -1, 1, 0, 2, Q("18.3225 in")),
    Sketcher.Constraint("Distance", 1, 0.873369),
    Sketcher.Constraint("Distance", 2, 0.17132),
    Sketcher.Constraint("DistanceY", 0, 2, 0, 1, 0.942857),
    Sketcher.Constraint("DistanceY", -1, 1, 1, 2, 93.153722),
])
pocket9 = body.newObject("PartDesign::Pocket", "Pocket008")
pocket9.Profile = sketch11
pocket9.Type = "UpToFirst"

sketch12 = body.newObject("Sketcher::SketchObject", "Sketch011")
sketch12.AttachmentSupport = (doc.getObject("XY_Plane"), [""])
sketch12.MapMode = "FlatFace"
sketch12.AttachmentOffset = App.Placement(App.Vector(0, 0, 0.0625 * 25.4), App.Rotation())
sketch12.addGeometry([
    Part.LineSegment(App.Vector(201.36, 93.24, 0), App.Vector(201.21, 93.15, 0)),
    Part.LineSegment(App.Vector(201.21, 93.15, 0), App.Vector(201.36, 92.29, 0)),
    Part.LineSegment(App.Vector(201.36, 92.29, 0), App.Vector(201.36, 93.24, 0)),
], False)
sketch12.addConstraint([
    Sketcher.Constraint("Coincident", 0, 2, 1, 1),
    Sketcher.Constraint("Coincident", 1, 2, 2, 1),
    Sketcher.Constraint("Coincident", 2, 2, 0, 1),
    Sketcher.Constraint("Vertical", 2),
    Sketcher.Constraint("DistanceX", -1, 1, 1, 2, Q("7.9275 in")),
    Sketcher.Constraint("Distance", 0, 0.17132),
    Sketcher.Constraint("Distance", 1, 0.873369),
    Sketcher.Constraint("DistanceY", 2, 1, 2, 2, 0.942857),
    Sketcher.Constraint("DistanceY", -1, 1, 0, 2, 93.153722),
])
pocket10 = body.newObject("PartDesign::Pocket", "Pocket009")
pocket10.Profile = sketch12
pocket10.Type = "UpToFirst"
doc.recompute()

fillet4 = body.newObject("PartDesign::Fillet", "Fillet003")
fillet4.Base = (pocket10, edges_at(pocket10, [
    (534.219, 55.423, 0.794),
    (550.482, 46.488, 0.794),
    (611.983, 12.7, 0.794),
    (54.767, 12.7, 0.794),
    (116.268, 46.488, 0.794),
    (132.531, 55.423, 0.794),
    (465.392, 93.236, 0.794),
    (201.358, 93.236, 0.794),
]))
fillet4.Radius = Q("0.1 in")

sketch13 = body.newObject("Sketcher::SketchObject", "Sketch012")
sketch13.AttachmentSupport = (doc.getObject("XY_Plane"), [""])
sketch13.MapMode = "FlatFace"
sketch13.AttachmentOffset = App.Placement(App.Vector(0, 0, 0.0625 * 25.4), App.Rotation())
sketch13.addGeometry([
    Part.LineSegment(App.Vector(214, 118, 0), App.Vector(0, 55, 0)),
    Part.LineSegment(App.Vector(0, 55, 0), App.Vector(0, 0, 0)),
    Part.LineSegment(App.Vector(0, 0, 0), App.Vector(214, 0, 0)),
    Part.LineSegment(App.Vector(214, 0, 0), App.Vector(214, 118, 0)),
], False)
sketch13.addConstraint([
    Sketcher.Constraint("Coincident", 0, 2, 1, 1),
    Sketcher.Constraint("Coincident", 1, 2, 2, 1),
    Sketcher.Constraint("Coincident", 2, 2, 3, 1),
    Sketcher.Constraint("Coincident", 3, 2, 0, 1),
    Sketcher.Constraint("Vertical", 1),
    Sketcher.Constraint("Horizontal", 2),
    Sketcher.Constraint("Vertical", 3),
    Sketcher.Constraint("Coincident", 1, 2, -1, 1),
    Sketcher.Constraint("DistanceY", 3, 1, 3, 2, Q("4.63 in")),
    Sketcher.Constraint("DistanceX", 2, 1, 2, 2, Q("8.4275 in")),
    Sketcher.Constraint("DistanceY", 1, 2, 1, 1, 54.934887),
])
pad3 = body.newObject("PartDesign::Pad", "Pad002")
pad3.Profile = sketch13
pad3.Length = Q("0.0625 in")
pad3.Reversed = True

sketch14 = body.newObject("Sketcher::SketchObject", "Sketch013")
sketch14.AttachmentSupport = (doc.getObject("XY_Plane"), [""])
sketch14.MapMode = "FlatFace"
sketch14.AttachmentOffset = App.Placement(App.Vector(0, 0, 0.0625 * 25.4), App.Rotation())
sketch14.addGeometry([
    Part.LineSegment(App.Vector(96, 70, 0), App.Vector(201, 21, 0)),
    Part.LineSegment(App.Vector(201, 21, 0), App.Vector(201, 101, 0)),
    Part.LineSegment(App.Vector(201, 101, 0), App.Vector(96, 70, 0)),
], False)
sketch14.addConstraint([
    Sketcher.Constraint("Coincident", 0, 2, 1, 1),
    Sketcher.Constraint("Coincident", 1, 2, 2, 1),
    Sketcher.Constraint("Coincident", 2, 2, 0, 1),
    Sketcher.Constraint("Vertical", 1),
    Sketcher.Constraint("DistanceY", 1, 1, 1, 2, 79.558298),
    Sketcher.Constraint("DistanceX", -1, 1, 0, 2, Q("7.9275 in")),
    Sketcher.Constraint("DistanceY", -1, 1, 0, 2, 21.092638),
    Sketcher.Constraint("Distance", 0, 116.159007),
    Sketcher.Constraint("Distance", 2, 109.891882),
])
pocket11 = body.newObject("PartDesign::Pocket", "Pocket010")
pocket11.Profile = sketch14
pocket11.Type = "UpToFirst"

sketch15 = body.newObject("Sketcher::SketchObject", "Sketch014")
sketch15.AttachmentSupport = (doc.getObject("XY_Plane"), [""])
sketch15.MapMode = "FlatFace"
sketch15.AttachmentOffset = App.Placement(App.Vector(0, 0, 0.0625 * 25.4), App.Rotation())
sketch15.addGeometry([
    Part.LineSegment(App.Vector(183, 13, 0), App.Vector(74, 63, 0)),
    Part.LineSegment(App.Vector(74, 63, 0), App.Vector(13, 45, 0)),
    Part.LineSegment(App.Vector(13, 45, 0), App.Vector(13, 13, 0)),
    Part.LineSegment(App.Vector(13, 13, 0), App.Vector(183, 13, 0)),
], False)
sketch15.addConstraint([
    Sketcher.Constraint("Coincident", 0, 2, 1, 1),
    Sketcher.Constraint("Coincident", 1, 2, 2, 1),
    Sketcher.Constraint("Coincident", 2, 2, 3, 1),
    Sketcher.Constraint("Coincident", 3, 2, 0, 1),
    Sketcher.Constraint("Vertical", 2),
    Sketcher.Constraint("Horizontal", 3),
    Sketcher.Constraint("Distance", 1, Q("2.5 in")),
    Sketcher.Constraint("DistanceX", -1, 1, 1, 2, Q("0.5 in")),
    Sketcher.Constraint("DistanceY", -1, 1, 2, 2, Q("0.5 in")),
    Sketcher.Constraint("DistanceX", 3, 1, 3, 2, 170.476822),
    Sketcher.Constraint("DistanceY", 2, 2, 2, 1, 32.719849),
    Sketcher.Constraint("DistanceX", -1, 1, 0, 2, 73.642109),
])
pocket12 = body.newObject("PartDesign::Pocket", "Pocket011")
pocket12.Profile = sketch15
pocket12.Type = "UpToFirst"
doc.recompute()

fillet5 = body.newObject("PartDesign::Fillet", "Fillet004")
fillet5.Base = (pocket12, edges_at(pocket12, [
    (201.358, 100.651, 0.794),
    (201.358, 21.093, 0.794),
    (95.893, 69.775, 0.794),
    (73.642, 63.261, 0.794),
    (183.177, 12.7, 0.794),
]))
fillet5.Radius = Q("0.1 in")
doc.recompute()

fillet6 = body.newObject("PartDesign::Fillet", "Fillet005")
fillet6.Base = (fillet5, edges_at(fillet5, [(12.7, 45.42, 0.794), (12.7, 12.7, 0.794)]))
fillet6.Radius = Q("0.7 in")

doc.recompute()
